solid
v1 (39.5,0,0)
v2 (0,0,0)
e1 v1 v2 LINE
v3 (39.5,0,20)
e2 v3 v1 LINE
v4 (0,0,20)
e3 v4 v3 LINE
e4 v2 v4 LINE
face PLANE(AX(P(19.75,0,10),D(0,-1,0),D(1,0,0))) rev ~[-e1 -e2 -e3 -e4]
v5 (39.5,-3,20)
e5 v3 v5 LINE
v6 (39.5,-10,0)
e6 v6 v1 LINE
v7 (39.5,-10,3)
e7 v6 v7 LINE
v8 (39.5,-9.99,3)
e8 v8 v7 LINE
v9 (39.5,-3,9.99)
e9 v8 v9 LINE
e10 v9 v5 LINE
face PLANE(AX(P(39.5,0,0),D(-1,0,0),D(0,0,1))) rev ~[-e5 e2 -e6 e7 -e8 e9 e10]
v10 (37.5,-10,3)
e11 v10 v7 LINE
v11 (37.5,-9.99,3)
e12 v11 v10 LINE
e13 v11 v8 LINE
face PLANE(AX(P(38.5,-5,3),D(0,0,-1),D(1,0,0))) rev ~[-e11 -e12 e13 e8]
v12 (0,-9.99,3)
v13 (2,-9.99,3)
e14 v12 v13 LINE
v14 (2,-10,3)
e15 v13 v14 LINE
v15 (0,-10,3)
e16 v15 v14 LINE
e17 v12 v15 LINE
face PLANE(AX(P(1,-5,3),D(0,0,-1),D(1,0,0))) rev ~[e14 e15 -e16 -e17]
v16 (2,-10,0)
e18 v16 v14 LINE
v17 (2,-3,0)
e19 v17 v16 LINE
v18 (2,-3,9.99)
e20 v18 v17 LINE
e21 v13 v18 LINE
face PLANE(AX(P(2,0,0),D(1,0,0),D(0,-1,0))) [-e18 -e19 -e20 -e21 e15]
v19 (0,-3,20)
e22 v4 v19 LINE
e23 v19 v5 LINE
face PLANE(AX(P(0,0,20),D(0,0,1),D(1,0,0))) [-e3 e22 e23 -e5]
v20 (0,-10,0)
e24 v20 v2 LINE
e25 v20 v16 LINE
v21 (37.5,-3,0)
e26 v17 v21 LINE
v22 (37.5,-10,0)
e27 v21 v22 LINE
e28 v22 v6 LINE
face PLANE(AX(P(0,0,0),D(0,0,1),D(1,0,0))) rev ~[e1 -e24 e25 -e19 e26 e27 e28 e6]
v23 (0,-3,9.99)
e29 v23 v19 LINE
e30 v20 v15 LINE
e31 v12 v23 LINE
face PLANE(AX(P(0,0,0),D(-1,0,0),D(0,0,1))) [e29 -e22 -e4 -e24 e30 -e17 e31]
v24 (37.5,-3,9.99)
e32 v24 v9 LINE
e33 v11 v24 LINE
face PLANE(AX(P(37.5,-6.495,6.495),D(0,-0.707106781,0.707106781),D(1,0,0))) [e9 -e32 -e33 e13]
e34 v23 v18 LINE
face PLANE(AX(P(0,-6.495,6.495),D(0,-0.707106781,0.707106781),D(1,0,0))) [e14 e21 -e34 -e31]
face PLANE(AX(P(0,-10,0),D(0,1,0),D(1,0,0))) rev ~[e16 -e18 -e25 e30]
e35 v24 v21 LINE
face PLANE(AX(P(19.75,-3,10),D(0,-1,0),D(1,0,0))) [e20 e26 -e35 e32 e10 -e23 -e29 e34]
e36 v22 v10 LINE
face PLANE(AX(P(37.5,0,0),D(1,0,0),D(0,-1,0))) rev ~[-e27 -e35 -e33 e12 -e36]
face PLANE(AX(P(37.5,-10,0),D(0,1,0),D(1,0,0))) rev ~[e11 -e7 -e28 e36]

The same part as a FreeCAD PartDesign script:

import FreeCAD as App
import Part
import Sketcher
from FreeCAD import Vector
Q = App.Units.Quantity


def edges_at(feature, points):
    """Names of the edges that pass closest to the given points."""
    edges = feature.Shape.Edges
    near = lambda p: min(range(len(edges)), key=lambda i: edges[i].distToShape(Part.Vertex(*p))[0])
    return sorted({f"Edge{near(p) + 1}" for p in points})


def add_polygon(sketch, points):
    """Adds a closed chain of lines whose ends are joined by coincident constraints."""
    first, n = sketch.GeometryCount, len(points)
    for a, b in zip(points, points[1:] + points[:1]):
        sketch.addGeometry(Part.LineSegment(App.Vector(*a, 0), App.Vector(*b, 0)), False)
    for i in range(n):
        sketch.addConstraint(Sketcher.Constraint("Coincident", first + i, 2, first + (i + 1) % n, 1))

doc = App.newDocument("Part")
params = doc.addObject("Spreadsheet::Sheet", "Params")
for row, (alias, value) in enumerate([
    ("sketch1_height", "20 mm"),
    ("sketch1_width", "39.5 mm"),
    ("pad1_length", "3 mm"),
    ("sketch2_width", "2 mm"),
    ("sketch2_height", "10 mm"),
    ("pad2_length", "3 mm"),
    ("chamfer_size", "6.99 mm"),
    ("chamfer2_size", "6.99 mm"),
], start=1):
    params.set(f"A{row}", alias)
    params.set(f"B{row}", "=" + value)
    params.setAlias(f"B{row}", alias)

body = doc.addObject("PartDesign::Body", "Body")

# Sketch on XZ plane
sketch1 = body.newObject("Sketcher::SketchObject", "Sketch")
sketch1.AttachmentSupport = (doc.getObject("XZ_Plane"), [""])
sketch1.MapMode = "FlatFace"
add_polygon(sketch1, [(0, 20), (0, 0), (40, 0), (40, 20)])  # lines 0-3
sketch1.addConstraint(Sketcher.Constraint("Vertical", 0))
sketch1.addConstraint(Sketcher.Constraint("Horizontal", 1))
sketch1.addConstraint(Sketcher.Constraint("Vertical", 2))
sketch1.addConstraint(Sketcher.Constraint("Horizontal", 3))
sketch1.addConstraint(Sketcher.Constraint("Coincident", 0, 2, -1, 1))
sketch1.addConstraint(Sketcher.Constraint("DistanceY", 0, 2, 0, 1, Q("20 mm")))
sketch1.addConstraint(Sketcher.Constraint("DistanceX", 1, 1, 1, 2, Q("39.5 mm")))
sketch1.setExpression("Constraints[9]", "Params.sketch1_height")
sketch1.setExpression("Constraints[10]", "Params.sketch1_width")
pad1 = body.newObject("PartDesign::Pad", "Pad")
pad1.Profile = sketch1
pad1.setExpression("Length", "Params.pad1_length")

# Sketch on XY plane
sketch2 = body.newObject("Sketcher::SketchObject", "Sketch001")
sketch2.AttachmentSupport = (doc.getObject("XY_Plane"), [""])
sketch2.MapMode = "FlatFace"
add_polygon(sketch2, [(37.5, -10), (37.5, 0), (39.5, 0), (39.5, -10)])  # lines 0-3
add_polygon(sketch2, [(0, -10), (0, 0), (2, 0), (2, -10)])  # lines 4-7
sketch2.addConstraint(Sketcher.Constraint("Vertical", 0))
sketch2.addConstraint(Sketcher.Constraint("Horizontal", 1))
sketch2.addConstraint(Sketcher.Constraint("Vertical", 2))
sketch2.addConstraint(Sketcher.Constraint("Horizontal", 3))
sketch2.addConstraint(Sketcher.Constraint("Vertical", 4))
sketch2.addConstraint(Sketcher.Constraint("Horizontal", 5))
sketch2.addConstraint(Sketcher.Constraint("Vertical", 6))
sketch2.addConstraint(Sketcher.Constraint("Horizontal", 7))
sketch2.addConstraint(Sketcher.Constraint("Coincident", 4, 2, -1, 1))
sketch2.addConstraint(Sketcher.Constraint("PointOnObject", 0, 2, -1))
sketch2.addConstraint(Sketcher.Constraint("Horizontal", 3, 2, 6, 2))
sketch2.addConstraint(Sketcher.Constraint("Equal", 3, 5))
sketch2.addConstraint(Sketcher.Constraint("DistanceX", 1, 1, 1, 2, Q("2 mm")))
sketch2.addConstraint(Sketcher.Constraint("DistanceY", 0, 1, 0, 2, Q("10 mm")))
sketch2.addConstraint(Sketcher.Constraint("DistanceX", -1, 1, 0, 2, Q("37.5 mm")))
sketch2.setExpression("Constraints[20]", "Params.sketch2_width")
sketch2.setExpression("Constraints[21]", "Params.sketch2_height")
pad2 = body.newObject("PartDesign::Pad", "Pad001")
pad2.Profile = sketch2
pad2.setExpression("Length", "Params.pad2_length")
doc.recompute()

chamfer = body.newObject("PartDesign::Chamfer", "Chamfer")
chamfer.Base = (pad2, edges_at(pad2, [(38.5, -3, 3)]))
chamfer.setExpression("Size", "Params.chamfer_size")
doc.recompute()

chamfer2 = body.newObject("PartDesign::Chamfer", "Chamfer001")
chamfer2.Base = (chamfer, edges_at(chamfer, [(1, -3, 3)]))
chamfer2.setExpression("Size", "Params.chamfer2_size")

doc.recompute()
